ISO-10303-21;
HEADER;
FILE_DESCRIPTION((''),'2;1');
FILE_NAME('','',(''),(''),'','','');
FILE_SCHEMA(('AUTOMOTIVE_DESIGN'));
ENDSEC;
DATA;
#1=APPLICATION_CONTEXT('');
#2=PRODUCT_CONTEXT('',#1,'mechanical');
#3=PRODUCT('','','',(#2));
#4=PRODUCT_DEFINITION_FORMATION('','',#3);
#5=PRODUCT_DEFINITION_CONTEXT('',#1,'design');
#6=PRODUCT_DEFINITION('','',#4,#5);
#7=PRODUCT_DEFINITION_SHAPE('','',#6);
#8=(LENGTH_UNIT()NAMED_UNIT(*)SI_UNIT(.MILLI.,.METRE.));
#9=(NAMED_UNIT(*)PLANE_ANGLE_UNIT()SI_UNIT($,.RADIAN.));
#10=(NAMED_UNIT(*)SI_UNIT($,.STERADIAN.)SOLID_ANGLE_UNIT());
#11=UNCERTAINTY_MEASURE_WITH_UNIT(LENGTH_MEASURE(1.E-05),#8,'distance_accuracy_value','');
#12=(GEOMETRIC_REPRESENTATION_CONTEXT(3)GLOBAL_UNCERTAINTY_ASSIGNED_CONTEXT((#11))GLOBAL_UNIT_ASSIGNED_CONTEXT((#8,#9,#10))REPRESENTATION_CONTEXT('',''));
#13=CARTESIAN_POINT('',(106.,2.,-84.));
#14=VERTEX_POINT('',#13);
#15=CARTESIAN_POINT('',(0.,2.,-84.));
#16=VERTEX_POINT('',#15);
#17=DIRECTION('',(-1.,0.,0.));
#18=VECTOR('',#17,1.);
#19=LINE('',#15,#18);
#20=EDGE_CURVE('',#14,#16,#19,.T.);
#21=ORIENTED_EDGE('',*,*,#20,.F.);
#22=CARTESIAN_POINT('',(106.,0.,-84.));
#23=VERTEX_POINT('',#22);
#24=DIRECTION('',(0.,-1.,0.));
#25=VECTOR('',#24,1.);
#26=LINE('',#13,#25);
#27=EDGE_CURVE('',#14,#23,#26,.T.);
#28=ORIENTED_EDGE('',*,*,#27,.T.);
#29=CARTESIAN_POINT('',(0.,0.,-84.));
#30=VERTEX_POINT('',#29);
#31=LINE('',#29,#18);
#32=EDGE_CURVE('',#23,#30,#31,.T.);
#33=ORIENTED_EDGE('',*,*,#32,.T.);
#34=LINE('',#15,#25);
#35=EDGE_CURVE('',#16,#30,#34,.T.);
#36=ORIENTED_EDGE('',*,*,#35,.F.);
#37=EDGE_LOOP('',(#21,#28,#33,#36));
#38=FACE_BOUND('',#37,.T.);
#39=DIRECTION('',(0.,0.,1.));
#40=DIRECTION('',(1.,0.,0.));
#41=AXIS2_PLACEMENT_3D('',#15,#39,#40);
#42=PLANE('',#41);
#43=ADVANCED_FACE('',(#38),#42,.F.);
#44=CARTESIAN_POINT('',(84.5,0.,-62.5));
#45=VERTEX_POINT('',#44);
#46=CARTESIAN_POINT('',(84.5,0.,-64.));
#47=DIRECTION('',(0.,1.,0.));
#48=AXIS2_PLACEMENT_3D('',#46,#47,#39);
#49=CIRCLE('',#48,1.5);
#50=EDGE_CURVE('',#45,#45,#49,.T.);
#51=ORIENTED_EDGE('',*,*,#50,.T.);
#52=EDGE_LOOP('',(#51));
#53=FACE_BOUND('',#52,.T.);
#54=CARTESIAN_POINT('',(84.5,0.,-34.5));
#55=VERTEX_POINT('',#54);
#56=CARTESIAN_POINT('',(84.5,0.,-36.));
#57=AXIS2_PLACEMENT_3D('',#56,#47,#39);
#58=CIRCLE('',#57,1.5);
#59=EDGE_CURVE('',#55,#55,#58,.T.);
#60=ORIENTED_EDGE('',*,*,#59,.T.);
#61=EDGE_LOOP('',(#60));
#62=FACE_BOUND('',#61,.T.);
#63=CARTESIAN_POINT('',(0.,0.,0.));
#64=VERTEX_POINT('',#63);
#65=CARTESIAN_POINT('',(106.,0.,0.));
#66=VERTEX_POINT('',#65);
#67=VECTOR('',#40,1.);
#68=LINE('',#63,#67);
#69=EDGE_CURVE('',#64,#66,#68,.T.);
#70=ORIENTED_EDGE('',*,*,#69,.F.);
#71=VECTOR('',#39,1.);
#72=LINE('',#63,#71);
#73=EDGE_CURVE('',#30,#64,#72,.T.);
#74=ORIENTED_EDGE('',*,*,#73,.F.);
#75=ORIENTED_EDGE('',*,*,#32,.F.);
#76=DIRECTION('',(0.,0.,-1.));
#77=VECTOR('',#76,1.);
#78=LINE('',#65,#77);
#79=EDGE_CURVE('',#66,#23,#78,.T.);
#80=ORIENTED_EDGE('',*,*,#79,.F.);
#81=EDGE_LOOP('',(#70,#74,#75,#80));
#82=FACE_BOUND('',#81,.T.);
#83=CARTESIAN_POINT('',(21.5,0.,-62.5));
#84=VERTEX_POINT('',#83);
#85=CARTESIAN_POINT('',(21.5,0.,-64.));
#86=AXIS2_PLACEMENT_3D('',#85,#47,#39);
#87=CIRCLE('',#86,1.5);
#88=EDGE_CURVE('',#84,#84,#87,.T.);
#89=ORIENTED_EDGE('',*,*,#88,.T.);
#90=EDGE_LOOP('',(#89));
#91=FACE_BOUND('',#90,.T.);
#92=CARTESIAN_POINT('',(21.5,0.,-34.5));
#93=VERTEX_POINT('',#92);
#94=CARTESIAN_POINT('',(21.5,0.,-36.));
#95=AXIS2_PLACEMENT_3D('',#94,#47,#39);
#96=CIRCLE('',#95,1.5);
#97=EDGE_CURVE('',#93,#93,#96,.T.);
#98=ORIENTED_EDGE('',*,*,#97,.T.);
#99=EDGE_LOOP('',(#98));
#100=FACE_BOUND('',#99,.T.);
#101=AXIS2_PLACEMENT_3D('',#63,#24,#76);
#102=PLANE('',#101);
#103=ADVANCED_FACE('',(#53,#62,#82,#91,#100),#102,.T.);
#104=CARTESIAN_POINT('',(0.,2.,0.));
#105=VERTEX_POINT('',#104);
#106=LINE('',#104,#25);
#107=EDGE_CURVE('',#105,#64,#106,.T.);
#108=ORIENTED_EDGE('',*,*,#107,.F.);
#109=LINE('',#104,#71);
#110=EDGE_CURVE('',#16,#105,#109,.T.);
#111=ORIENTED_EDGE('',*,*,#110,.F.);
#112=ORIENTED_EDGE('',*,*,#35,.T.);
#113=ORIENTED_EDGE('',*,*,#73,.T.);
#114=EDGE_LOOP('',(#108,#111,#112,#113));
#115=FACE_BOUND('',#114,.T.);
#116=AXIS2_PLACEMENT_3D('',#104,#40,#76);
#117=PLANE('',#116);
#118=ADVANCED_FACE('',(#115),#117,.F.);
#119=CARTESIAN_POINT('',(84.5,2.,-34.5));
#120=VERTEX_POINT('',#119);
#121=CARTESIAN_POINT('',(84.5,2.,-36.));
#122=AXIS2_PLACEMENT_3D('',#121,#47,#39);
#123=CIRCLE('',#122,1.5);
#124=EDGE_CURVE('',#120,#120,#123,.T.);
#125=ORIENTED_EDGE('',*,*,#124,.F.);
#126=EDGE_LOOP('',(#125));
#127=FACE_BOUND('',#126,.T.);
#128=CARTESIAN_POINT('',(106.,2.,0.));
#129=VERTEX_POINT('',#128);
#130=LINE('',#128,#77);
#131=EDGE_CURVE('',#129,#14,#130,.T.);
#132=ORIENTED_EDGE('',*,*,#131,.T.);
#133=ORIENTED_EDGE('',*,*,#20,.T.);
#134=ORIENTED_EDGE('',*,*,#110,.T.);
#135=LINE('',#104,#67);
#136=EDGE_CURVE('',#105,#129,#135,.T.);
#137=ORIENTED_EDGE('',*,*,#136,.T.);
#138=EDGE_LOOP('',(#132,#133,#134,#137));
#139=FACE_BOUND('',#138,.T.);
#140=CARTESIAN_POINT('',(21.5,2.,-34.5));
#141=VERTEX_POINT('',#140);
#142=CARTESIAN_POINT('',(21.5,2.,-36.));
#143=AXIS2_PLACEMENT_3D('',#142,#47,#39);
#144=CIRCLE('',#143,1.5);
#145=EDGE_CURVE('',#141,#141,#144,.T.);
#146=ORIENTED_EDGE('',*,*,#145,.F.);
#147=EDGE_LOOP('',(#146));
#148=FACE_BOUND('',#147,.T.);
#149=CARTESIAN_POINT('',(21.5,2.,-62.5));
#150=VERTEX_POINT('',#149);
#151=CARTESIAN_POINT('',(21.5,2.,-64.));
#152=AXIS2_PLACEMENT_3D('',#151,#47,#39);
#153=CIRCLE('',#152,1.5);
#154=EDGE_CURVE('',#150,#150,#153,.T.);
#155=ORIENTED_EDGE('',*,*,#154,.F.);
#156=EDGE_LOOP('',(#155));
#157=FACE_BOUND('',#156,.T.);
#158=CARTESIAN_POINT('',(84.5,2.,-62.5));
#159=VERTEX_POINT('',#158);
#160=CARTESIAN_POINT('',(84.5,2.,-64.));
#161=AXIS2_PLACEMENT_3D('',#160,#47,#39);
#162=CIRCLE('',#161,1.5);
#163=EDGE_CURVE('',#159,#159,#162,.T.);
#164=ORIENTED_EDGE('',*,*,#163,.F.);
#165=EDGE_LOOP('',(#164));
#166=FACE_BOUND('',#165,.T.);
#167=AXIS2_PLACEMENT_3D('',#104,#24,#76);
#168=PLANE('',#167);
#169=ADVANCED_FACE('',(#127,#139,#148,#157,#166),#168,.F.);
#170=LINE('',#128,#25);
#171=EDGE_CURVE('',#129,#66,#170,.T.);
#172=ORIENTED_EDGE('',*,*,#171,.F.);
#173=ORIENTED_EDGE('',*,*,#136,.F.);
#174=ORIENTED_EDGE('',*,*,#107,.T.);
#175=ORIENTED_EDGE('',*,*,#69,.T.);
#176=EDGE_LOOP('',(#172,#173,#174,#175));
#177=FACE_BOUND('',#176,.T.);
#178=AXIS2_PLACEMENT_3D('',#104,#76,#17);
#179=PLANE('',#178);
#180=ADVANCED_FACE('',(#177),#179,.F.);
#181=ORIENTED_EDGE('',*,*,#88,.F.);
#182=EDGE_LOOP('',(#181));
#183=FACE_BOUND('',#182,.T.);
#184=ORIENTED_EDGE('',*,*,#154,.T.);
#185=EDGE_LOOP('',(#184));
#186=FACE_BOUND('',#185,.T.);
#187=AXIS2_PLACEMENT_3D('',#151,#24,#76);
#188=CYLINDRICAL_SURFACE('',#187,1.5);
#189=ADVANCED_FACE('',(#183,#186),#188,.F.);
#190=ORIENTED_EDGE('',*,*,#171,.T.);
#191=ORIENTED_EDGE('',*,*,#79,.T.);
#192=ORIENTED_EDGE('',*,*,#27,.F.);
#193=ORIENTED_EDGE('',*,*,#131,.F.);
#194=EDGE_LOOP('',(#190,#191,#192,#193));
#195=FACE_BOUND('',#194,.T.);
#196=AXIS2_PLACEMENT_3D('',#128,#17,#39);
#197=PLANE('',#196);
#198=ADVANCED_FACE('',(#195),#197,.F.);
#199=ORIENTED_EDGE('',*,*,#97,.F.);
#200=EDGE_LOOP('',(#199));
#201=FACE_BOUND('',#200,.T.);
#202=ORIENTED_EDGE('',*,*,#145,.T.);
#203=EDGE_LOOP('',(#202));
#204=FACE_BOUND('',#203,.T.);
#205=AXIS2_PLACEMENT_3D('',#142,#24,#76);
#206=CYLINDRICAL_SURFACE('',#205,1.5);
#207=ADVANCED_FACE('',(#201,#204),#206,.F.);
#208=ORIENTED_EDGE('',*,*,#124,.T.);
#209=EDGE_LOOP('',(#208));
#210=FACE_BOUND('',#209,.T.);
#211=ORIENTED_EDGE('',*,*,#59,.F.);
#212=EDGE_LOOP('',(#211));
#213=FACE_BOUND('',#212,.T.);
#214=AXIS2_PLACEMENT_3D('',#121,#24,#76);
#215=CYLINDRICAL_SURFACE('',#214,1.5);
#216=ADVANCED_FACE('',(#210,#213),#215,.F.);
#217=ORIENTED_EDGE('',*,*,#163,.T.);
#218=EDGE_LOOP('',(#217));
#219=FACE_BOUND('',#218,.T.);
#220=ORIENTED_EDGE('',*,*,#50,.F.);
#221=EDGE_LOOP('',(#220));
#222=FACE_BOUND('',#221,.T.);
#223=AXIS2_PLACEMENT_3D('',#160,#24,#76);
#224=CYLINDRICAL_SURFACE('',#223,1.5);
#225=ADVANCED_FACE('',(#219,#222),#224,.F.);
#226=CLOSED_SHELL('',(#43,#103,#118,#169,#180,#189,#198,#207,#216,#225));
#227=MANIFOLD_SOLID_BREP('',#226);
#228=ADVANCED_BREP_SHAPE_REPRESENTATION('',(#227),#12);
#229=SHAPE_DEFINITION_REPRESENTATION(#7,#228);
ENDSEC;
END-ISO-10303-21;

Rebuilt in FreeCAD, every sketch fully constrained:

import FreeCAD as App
import Part
import Sketcher
Q = App.Units.Quantity


def add_polygon(sketch, points):
    """Adds a closed chain of lines whose ends are joined by coincident constraints."""
    first, n = sketch.GeometryCount, len(points)
    for a, b in zip(points, points[1:] + points[:1]):
        sketch.addGeometry(Part.LineSegment(App.Vector(*a, 0), App.Vector(*b, 0)), False)
    for i in range(n):
        sketch.addConstraint(Sketcher.Constraint("Coincident", first + i, 2, first + (i + 1) % n, 1))

doc = App.newDocument("Part")
params = doc.addObject("Spreadsheet::Sheet", "Params")
for row, (alias, value) in enumerate([
    ("sketch1_diameter", "3 mm"),
    ("sketch1_width", "106 mm"),
    ("sketch1_height", "84 mm"),
    ("pad1_length", "2 mm"),
], start=1):
    params.set(f"A{row}", alias)
    params.set(f"B{row}", "=" + value)
    params.setAlias(f"B{row}", alias)

body = doc.addObject("PartDesign::Body", "Body")

# Sketch on XZ plane
sketch1 = body.newObject("Sketcher::SketchObject", "Sketch")
sketch1.AttachmentSupport = (doc.getObject("XZ_Plane"), [""])
sketch1.MapMode = "FlatFace"
add_polygon(sketch1, [(0, -84), (0, 0), (106, 0), (106, -84)])  # lines 0-3
sketch1.addGeometry(Part.Circle(App.Vector(21.5, -36, 0), App.Vector(0, 0, 1), 1.5), False)  # 4
sketch1.addGeometry(Part.Circle(App.Vector(84.5, -36, 0), App.Vector(0, 0, 1), 1.5), False)  # 5
sketch1.addGeometry(Part.Circle(App.Vector(21.5, -64, 0), App.Vector(0, 0, 1), 1.5), False)  # 6
sketch1.addGeometry(Part.Circle(App.Vector(84.5, -64, 0), App.Vector(0, 0, 1), 1.5), False)  # 7
sketch1.addConstraint([
    Sketcher.Constraint("Vertical", 0),
    Sketcher.Constraint("Horizontal", 1),
    Sketcher.Constraint("Vertical", 2),
    Sketcher.Constraint("Horizontal", 3),
    Sketcher.Constraint("Coincident", 0, 2, -1, 1),
    Sketcher.Constraint("Equal", 4, 5),
    Sketcher.Constraint("Equal", 5, 6),
    Sketcher.Constraint("Equal", 6, 7),
    Sketcher.Constraint("Horizontal", 4, 3, 5, 3),
    Sketcher.Constraint("Horizontal", 6, 3, 7, 3),
    Sketcher.Constraint("Vertical", 4, 3, 6, 3),
    Sketcher.Constraint("Vertical", 5, 3, 7, 3),
    Sketcher.Constraint("Diameter", 4, Q("3 mm")),
    Sketcher.Constraint("DistanceX", 1, 1, 1, 2, Q("106 mm")),
    Sketcher.Constraint("DistanceY", 0, 1, 0, 2, Q("84 mm")),
    Sketcher.Constraint("DistanceY", 4, 3, -1, 1, Q("36 mm")),
    Sketcher.Constraint("DistanceY", 6, 3, -1, 1, Q("64 mm")),
    Sketcher.Constraint("DistanceX", 4, 3, 5, 3, Q("63 mm")),
    Sketcher.Constraint("DistanceX", -1, 1, 4, 3, Q("21.5 mm")),
])
sketch1.setExpression("Constraints[16]", "Params.sketch1_diameter")
sketch1.setExpression("Constraints[17]", "Params.sketch1_width")
sketch1.setExpression("Constraints[18]", "Params.sketch1_height")
pad1 = body.newObject("PartDesign::Pad", "Pad")
pad1.Profile = sketch1
pad1.setExpression("Length", "Params.pad1_length")
pad1.Reversed = True

doc.recompute()
